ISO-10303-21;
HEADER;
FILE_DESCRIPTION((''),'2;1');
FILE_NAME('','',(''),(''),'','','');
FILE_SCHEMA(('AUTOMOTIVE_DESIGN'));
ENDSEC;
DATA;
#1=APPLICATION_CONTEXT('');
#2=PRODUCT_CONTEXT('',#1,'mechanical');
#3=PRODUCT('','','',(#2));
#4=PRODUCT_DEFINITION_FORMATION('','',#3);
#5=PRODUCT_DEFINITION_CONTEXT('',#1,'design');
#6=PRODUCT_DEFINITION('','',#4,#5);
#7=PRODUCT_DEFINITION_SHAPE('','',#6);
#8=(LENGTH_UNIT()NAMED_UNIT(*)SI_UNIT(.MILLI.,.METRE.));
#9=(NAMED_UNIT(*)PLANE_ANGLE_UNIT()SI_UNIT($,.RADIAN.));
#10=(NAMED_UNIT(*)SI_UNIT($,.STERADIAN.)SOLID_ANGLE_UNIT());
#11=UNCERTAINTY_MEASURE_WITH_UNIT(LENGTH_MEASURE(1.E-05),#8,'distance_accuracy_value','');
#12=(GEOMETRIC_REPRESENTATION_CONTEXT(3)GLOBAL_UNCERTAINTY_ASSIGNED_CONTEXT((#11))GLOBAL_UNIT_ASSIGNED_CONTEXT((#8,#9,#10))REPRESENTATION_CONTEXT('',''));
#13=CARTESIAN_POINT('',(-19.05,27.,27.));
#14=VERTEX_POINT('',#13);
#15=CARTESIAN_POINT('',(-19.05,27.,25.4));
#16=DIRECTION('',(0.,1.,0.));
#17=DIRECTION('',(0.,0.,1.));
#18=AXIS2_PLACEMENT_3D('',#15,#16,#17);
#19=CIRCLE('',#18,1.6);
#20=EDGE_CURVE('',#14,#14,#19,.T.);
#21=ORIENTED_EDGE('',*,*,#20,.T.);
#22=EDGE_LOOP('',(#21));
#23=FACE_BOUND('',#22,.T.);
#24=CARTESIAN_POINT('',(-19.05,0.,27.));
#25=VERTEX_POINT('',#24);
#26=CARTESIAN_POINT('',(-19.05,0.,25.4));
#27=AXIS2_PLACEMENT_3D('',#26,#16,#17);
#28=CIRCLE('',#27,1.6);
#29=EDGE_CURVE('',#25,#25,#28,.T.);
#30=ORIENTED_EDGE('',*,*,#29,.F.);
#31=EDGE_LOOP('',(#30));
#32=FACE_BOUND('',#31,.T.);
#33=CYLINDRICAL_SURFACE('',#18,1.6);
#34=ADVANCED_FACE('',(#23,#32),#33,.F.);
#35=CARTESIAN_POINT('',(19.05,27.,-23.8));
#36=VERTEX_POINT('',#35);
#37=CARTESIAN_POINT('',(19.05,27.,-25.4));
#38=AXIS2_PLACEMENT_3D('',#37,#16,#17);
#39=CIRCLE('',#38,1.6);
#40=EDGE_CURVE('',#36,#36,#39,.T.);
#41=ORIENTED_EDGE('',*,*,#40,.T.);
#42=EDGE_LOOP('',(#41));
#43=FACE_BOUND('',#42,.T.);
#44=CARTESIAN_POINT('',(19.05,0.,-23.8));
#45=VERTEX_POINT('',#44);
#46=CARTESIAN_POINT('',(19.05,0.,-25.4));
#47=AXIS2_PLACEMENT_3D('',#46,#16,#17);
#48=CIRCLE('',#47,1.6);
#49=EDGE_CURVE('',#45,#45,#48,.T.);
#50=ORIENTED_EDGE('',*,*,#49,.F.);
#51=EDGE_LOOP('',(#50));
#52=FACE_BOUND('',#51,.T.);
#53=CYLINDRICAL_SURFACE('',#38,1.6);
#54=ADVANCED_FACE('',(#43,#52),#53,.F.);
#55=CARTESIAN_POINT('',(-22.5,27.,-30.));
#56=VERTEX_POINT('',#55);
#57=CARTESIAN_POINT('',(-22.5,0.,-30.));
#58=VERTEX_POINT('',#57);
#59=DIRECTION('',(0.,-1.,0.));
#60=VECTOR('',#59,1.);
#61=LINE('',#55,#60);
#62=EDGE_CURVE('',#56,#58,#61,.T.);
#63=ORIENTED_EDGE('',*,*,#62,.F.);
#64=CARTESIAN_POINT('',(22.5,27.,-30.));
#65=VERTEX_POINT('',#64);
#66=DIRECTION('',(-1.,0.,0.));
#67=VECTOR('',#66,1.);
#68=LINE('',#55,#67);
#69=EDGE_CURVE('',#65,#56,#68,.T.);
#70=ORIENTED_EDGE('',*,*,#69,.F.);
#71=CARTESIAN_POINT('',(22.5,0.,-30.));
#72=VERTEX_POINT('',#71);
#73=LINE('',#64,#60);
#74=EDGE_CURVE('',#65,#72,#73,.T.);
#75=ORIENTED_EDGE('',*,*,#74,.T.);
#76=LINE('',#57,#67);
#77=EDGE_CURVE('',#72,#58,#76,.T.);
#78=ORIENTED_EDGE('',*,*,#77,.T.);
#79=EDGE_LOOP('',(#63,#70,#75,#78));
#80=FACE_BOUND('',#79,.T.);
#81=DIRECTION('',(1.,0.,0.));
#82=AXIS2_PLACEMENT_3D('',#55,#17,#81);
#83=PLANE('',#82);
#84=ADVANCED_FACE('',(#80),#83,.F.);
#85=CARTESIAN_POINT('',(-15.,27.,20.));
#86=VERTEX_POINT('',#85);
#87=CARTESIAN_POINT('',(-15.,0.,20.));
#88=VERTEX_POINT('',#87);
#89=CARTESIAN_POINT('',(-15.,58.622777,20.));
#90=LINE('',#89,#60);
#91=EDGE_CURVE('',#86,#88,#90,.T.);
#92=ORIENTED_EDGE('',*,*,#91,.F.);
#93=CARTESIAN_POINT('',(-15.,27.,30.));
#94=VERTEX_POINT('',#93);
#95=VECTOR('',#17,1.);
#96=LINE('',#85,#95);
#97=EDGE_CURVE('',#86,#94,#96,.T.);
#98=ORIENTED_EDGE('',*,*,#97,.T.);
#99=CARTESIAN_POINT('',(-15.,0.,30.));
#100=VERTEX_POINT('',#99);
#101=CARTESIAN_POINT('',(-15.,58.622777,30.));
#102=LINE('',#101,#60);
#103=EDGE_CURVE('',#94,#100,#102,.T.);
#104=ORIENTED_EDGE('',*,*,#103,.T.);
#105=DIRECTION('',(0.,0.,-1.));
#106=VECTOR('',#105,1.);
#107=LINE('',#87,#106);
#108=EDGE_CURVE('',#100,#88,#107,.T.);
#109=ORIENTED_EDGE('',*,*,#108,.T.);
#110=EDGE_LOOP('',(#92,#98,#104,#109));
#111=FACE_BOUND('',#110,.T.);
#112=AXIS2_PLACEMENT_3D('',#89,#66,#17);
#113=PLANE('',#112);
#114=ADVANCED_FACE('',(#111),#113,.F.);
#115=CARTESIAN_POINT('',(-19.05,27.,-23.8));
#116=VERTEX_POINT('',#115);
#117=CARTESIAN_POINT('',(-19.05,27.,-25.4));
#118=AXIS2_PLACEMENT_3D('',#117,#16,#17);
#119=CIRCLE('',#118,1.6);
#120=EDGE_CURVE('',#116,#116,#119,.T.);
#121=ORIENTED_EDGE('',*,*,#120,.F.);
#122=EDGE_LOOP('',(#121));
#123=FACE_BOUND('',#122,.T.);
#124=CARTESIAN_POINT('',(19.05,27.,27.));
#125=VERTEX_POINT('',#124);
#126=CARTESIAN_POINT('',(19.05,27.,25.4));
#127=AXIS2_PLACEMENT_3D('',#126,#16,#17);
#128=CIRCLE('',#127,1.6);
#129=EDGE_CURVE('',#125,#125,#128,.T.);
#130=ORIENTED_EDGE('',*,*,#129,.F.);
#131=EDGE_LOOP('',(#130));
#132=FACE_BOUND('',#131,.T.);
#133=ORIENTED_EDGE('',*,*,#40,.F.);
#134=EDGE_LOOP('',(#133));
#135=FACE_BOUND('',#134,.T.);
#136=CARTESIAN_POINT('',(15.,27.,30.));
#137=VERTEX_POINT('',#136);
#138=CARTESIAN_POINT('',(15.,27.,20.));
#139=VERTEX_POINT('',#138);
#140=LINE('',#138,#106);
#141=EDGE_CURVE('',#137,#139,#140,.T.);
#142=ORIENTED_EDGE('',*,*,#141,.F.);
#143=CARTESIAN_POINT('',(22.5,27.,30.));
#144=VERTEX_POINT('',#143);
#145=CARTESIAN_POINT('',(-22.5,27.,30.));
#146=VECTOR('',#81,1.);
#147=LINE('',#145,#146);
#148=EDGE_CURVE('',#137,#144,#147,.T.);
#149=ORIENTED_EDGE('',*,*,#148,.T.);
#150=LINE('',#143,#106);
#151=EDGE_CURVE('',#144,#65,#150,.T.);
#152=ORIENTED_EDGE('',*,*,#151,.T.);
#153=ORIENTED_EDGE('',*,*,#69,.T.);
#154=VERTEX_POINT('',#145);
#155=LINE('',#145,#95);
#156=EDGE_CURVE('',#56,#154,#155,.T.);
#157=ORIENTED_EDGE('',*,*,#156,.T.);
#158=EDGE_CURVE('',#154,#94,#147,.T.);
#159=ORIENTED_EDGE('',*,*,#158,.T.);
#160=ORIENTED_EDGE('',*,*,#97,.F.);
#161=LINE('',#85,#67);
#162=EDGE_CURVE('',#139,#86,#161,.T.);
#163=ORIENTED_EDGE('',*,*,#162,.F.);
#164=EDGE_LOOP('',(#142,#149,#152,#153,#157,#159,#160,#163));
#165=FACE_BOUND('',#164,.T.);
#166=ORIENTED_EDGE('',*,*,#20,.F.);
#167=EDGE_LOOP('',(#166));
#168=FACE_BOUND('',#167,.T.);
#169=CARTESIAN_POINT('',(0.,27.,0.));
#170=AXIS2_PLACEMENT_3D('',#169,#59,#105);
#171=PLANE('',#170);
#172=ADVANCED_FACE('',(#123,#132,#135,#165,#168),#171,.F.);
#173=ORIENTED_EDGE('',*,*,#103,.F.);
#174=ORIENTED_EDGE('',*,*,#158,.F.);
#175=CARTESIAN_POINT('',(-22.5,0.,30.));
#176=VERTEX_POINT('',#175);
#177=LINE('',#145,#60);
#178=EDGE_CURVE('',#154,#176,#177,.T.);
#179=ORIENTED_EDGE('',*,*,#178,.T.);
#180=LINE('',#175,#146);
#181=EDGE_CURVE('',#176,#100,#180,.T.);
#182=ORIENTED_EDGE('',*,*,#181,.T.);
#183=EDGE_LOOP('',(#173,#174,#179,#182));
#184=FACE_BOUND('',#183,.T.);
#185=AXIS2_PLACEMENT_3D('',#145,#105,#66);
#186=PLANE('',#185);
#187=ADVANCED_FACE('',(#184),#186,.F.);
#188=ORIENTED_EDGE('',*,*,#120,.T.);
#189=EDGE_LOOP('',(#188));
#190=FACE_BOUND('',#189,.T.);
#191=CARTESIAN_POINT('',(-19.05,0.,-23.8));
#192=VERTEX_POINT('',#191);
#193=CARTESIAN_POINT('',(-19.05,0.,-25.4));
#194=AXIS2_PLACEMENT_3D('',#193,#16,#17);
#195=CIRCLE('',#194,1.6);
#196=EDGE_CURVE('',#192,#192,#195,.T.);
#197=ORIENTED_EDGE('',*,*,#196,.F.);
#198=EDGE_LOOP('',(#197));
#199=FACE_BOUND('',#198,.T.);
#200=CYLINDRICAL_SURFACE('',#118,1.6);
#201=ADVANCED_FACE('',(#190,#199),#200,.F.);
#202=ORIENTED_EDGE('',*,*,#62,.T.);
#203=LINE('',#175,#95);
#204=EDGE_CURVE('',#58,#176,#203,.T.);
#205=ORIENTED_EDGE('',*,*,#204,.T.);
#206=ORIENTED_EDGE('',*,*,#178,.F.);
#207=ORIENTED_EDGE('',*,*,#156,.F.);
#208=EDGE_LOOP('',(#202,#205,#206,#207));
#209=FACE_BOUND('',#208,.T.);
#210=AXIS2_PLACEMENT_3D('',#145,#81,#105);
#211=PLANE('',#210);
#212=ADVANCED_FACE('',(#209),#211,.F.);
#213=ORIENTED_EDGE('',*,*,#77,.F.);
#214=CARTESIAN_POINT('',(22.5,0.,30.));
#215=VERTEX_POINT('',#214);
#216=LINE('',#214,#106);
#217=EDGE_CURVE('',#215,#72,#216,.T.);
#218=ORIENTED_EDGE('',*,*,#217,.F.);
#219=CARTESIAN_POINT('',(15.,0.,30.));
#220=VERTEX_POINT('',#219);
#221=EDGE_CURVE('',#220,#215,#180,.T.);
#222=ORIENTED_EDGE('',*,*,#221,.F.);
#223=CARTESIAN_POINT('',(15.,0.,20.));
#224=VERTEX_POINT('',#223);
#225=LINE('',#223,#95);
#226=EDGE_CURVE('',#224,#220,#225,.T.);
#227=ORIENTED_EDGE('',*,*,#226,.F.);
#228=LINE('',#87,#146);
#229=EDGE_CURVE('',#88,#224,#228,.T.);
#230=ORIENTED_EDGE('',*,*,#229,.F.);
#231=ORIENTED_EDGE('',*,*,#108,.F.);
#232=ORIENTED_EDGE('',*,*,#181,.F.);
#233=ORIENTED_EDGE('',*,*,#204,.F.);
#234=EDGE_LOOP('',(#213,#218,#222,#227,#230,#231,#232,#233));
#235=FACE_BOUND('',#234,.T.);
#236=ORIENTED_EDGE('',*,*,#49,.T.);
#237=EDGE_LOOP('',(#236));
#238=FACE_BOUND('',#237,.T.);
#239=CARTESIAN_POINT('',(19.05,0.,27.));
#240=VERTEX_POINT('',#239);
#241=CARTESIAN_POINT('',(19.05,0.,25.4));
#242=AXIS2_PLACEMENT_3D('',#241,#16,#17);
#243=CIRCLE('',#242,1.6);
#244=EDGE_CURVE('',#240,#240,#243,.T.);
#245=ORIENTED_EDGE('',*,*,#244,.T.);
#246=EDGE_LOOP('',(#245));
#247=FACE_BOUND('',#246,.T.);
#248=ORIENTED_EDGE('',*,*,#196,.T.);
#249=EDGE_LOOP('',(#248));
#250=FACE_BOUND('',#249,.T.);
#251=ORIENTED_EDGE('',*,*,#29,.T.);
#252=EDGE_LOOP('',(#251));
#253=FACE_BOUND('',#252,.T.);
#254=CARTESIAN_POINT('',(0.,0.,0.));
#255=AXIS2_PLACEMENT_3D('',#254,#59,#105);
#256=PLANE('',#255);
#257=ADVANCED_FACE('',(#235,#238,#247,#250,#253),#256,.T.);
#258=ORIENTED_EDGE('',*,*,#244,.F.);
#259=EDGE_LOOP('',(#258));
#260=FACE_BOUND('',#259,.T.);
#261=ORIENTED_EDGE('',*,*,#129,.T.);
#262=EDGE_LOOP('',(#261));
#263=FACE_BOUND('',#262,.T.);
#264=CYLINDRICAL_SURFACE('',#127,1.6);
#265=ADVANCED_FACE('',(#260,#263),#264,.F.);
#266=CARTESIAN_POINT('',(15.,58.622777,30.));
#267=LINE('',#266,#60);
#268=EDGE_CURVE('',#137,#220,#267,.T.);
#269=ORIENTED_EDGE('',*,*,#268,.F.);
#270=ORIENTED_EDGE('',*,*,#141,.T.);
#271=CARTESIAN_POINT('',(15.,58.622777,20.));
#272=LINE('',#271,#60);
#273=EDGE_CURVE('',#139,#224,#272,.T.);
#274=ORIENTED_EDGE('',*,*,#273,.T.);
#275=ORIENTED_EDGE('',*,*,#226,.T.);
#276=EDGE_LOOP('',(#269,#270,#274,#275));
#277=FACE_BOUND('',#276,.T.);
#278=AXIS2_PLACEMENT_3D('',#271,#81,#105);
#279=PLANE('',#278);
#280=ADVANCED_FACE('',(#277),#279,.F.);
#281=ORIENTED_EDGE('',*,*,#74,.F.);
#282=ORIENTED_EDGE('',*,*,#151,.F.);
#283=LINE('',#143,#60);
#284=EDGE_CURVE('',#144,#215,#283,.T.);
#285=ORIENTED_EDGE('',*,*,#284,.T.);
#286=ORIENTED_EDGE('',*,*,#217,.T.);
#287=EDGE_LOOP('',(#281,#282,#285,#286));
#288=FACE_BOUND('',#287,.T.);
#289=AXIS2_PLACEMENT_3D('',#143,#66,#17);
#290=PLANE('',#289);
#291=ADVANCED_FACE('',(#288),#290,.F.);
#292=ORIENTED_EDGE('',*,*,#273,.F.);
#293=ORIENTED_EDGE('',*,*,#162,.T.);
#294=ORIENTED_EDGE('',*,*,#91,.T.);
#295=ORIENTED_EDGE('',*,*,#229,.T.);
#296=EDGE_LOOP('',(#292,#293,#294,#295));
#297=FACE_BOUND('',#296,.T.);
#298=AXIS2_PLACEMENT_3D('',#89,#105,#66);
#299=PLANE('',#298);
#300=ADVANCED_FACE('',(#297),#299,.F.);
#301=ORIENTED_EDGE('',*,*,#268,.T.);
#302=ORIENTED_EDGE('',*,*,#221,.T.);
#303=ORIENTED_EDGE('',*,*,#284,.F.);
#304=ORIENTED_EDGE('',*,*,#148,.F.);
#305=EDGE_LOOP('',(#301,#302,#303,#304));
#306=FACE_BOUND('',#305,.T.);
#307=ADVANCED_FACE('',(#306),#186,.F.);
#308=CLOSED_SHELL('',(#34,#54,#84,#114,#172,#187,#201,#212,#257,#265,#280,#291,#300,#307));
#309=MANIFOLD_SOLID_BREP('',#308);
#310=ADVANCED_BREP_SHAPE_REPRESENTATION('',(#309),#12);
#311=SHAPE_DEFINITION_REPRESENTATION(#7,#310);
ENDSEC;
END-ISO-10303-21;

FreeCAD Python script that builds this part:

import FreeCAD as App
import Part
import Sketcher
Q = App.Units.Quantity


def add_polygon(sketch, points):
    """Adds a closed chain of lines whose ends are joined by coincident constraints."""
    first, n = sketch.GeometryCount, len(points)
    for a, b in zip(points, points[1:] + points[:1]):
        sketch.addGeometry(Part.LineSegment(App.Vector(*a, 0), App.Vector(*b, 0)), False)
    for i in range(n):
        sketch.addConstraint(Sketcher.Constraint("Coincident", first + i, 2, first + (i + 1) % n, 1))

doc = App.newDocument("Part")
params = doc.addObject("Spreadsheet::Sheet", "Params")
for row, (alias, value) in enumerate([
    ("sketch1_width", "45 mm"),
    ("sketch1_height", "60 mm"),
    ("pad1_length", "27 mm"),
    ("sketch2_diameter", "3.2 mm"),
    ("hole_diameter", "3.2 mm"),
    ("sketch3_width", "30 mm"),
    ("sketch3_height", "10 mm"),
    ("pocket1_length", "27 mm"),
], start=1):
    params.set(f"A{row}", alias)
    params.set(f"B{row}", "=" + value)
    params.setAlias(f"B{row}", alias)

body = doc.addObject("PartDesign::Body", "Body")

# Sketch on XZ plane
sketch1 = body.newObject("Sketcher::SketchObject", "Sketch")
sketch1.AttachmentSupport = (doc.getObject("XZ_Plane"), [""])
sketch1.MapMode = "FlatFace"
add_polygon(sketch1, [(-22.5, -30), (-22.5, 30), (22.5, 30), (22.5, -30)])  # lines 0-3
sketch1.addConstraint(Sketcher.Constraint("Vertical", 0))
sketch1.addConstraint(Sketcher.Constraint("Horizontal", 1))
sketch1.addConstraint(Sketcher.Constraint("Vertical", 2))
sketch1.addConstraint(Sketcher.Constraint("Horizontal", 3))
sketch1.addConstraint(Sketcher.Constraint("Symmetric", 0, 2, 2, 2, -1, 1))
sketch1.addConstraint(Sketcher.Constraint("DistanceX", 1, 1, 1, 2, Q("45 mm")))
sketch1.addConstraint(Sketcher.Constraint("DistanceY", 0, 1, 0, 2, Q("60 mm")))
sketch1.setExpression("Constraints[9]", "Params.sketch1_width")
sketch1.setExpression("Constraints[10]", "Params.sketch1_height")
pad1 = body.newObject("PartDesign::Pad", "Pad")
pad1.Profile = sketch1
pad1.setExpression("Length", "Params.pad1_length")
pad1.Reversed = True

# Sketch on XZ plane
sketch2 = body.newObject("Sketcher::SketchObject", "Sketch001")
sketch2.AttachmentSupport = (doc.getObject("XZ_Plane"), [""])
sketch2.MapMode = "FlatFace"
sketch2.AttachmentOffset = App.Placement(App.Vector(0, 0, -27), App.Rotation())
sketch2.addGeometry(Part.Circle(App.Vector(-19.05, -25.4, 0), App.Vector(0, 0, 1), 1.6), False)
sketch2.addGeometry(Part.Circle(App.Vector(19.05, -25.4, 0), App.Vector(0, 0, 1), 1.6), False)
sketch2.addGeometry(Part.Circle(App.Vector(19.05, 25.4, 0), App.Vector(0, 0, 1), 1.6), False)
sketch2.addGeometry(Part.Circle(App.Vector(-19.05, 25.4, 0), App.Vector(0, 0, 1), 1.6), False)
sketch2.addConstraint(Sketcher.Constraint("Equal", 0, 1))
sketch2.addConstraint(Sketcher.Constraint("Equal", 1, 2))
sketch2.addConstraint(Sketcher.Constraint("Equal", 2, 3))
sketch2.addConstraint(Sketcher.Constraint("Symmetric", 0, 3, 2, 3, -1, 1))
sketch2.addConstraint(Sketcher.Constraint("Symmetric", 1, 3, 3, 3, -1, 1))
sketch2.addConstraint(Sketcher.Constraint("Symmetric", 0, 3, 1, 3, -2))
sketch2.addConstraint(Sketcher.Constraint("Diameter", 0, Q("3.2 mm")))
sketch2.addConstraint(Sketcher.Constraint("DistanceY", 0, 3, -1, 1, Q("25.4 mm")))
sketch2.addConstraint(Sketcher.Constraint("DistanceX", 0, 3, 1, 3, Q("38.1 mm")))
sketch2.setExpression("Constraints[6]", "Params.sketch2_diameter")
doc.recompute()
hole = body.newObject("PartDesign::Hole", "Hole")
hole.Profile = sketch2
hole.ThreadType = "None"
hole.setExpression("Diameter", "Params.hole_diameter")
hole.DepthType = "ThroughAll"
hole.Reversed = True

# Sketch on XZ plane
sketch3 = body.newObject("Sketcher::SketchObject", "Sketch002")
sketch3.AttachmentSupport = (doc.getObject("XZ_Plane"), [""])
sketch3.MapMode = "FlatFace"
add_polygon(sketch3, [(-15, 30), (-15, 20), (15, 20), (15, 30)])  # lines 0-3
sketch3.addConstraint(Sketcher.Constraint("Vertical", 0))
sketch3.addConstraint(Sketcher.Constraint("Horizontal", 1))
sketch3.addConstraint(Sketcher.Constraint("Vertical", 2))
sketch3.addConstraint(Sketcher.Constraint("Horizontal", 3))
sketch3.addConstraint(Sketcher.Constraint("DistanceX", 1, 1, 1, 2, Q("30 mm")))
sketch3.addConstraint(Sketcher.Constraint("DistanceY", 0, 2, 0, 1, Q("10 mm")))
sketch3.addConstraint(Sketcher.Constraint("DistanceX", 0, 2, -1, 1, Q("15 mm")))
sketch3.addConstraint(Sketcher.Constraint("DistanceY", -1, 1, 0, 2, Q("20 mm")))
sketch3.setExpression("Constraints[8]", "Params.sketch3_width")
sketch3.setExpression("Constraints[9]", "Params.sketch3_height")
pocket1 = body.newObject("PartDesign::Pocket", "Pocket")
pocket1.Profile = sketch3
pocket1.setExpression("Length", "Params.pocket1_length")

doc.recompute()
